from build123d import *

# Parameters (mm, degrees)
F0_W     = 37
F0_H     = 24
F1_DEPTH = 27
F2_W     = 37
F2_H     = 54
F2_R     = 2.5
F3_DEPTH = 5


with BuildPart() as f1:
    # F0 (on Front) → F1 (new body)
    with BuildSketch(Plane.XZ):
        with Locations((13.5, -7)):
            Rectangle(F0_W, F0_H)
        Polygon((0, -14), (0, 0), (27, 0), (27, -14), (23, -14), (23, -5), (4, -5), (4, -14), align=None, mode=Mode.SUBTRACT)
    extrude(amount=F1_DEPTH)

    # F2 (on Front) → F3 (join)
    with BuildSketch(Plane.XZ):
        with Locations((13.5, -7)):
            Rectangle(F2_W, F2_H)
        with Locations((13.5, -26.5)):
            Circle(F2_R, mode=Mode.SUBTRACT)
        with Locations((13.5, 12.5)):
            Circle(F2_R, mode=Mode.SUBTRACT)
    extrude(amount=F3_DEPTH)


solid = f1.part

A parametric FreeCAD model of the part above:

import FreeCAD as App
import Part
import Sketcher

V = App.Vector


def add_polygon(sketch, points):
    """Adds a closed chain of lines whose ends are joined by coincident constraints."""
    first, n = sketch.GeometryCount, len(points)
    for a, b in zip(points, points[1:] + points[:1]):
        sketch.addGeometry(Part.LineSegment(App.Vector(*a, 0), App.Vector(*b, 0)), False)
    for i in range(n):
        sketch.addConstraint(Sketcher.Constraint("Coincident", first + i, 2, first + (i + 1) % n, 1))

doc = App.newDocument("Part")
params = doc.addObject("Spreadsheet::Sheet", "Params")
for row, (alias, value) in enumerate([
    ("sketch1_width", "37 mm"),
    ("sketch1_width2", "4 mm"),
    ("sketch1_width3", "27 mm"),
    ("sketch1_height", "24 mm"),
    ("sketch1_height2", "14 mm"),
    ("pad1_length", "27 mm"),
    ("sketch2_diameter", "5 mm"),
    ("sketch2_width", "37 mm"),
    ("sketch2_height", "54 mm"),
    ("pad2_length", "5 mm"),
], start=1):
    params.set(f"A{row}", alias)
    params.set(f"B{row}", "=" + value)
    params.setAlias(f"B{row}", alias)

body = doc.addObject("PartDesign::Body", "Body")

# Sketch on XZ plane
sketch1 = body.newObject("Sketcher::SketchObject", "Sketch")
sketch1.AttachmentSupport = (doc.getObject("XZ_Plane"), [""])
sketch1.MapMode = "FlatFace"
add_polygon(sketch1, [(-5, 5), (-5, -19), (32, -19), (32, 5)])  # lines 0-3
add_polygon(sketch1, [(4, -14), (0, -14), (0, 0), (27, 0), (27, -14), (23, -14), (23, -5), (4, -5)])  # lines 4-11
sketch1.addConstraint(Sketcher.Constraint("Vertical", 0))
sketch1.addConstraint(Sketcher.Constraint("Horizontal", 1))
sketch1.addConstraint(Sketcher.Constraint("Vertical", 2))
sketch1.addConstraint(Sketcher.Constraint("Horizontal", 3))
sketch1.addConstraint(Sketcher.Constraint("Horizontal", 4))
sketch1.addConstraint(Sketcher.Constraint("Vertical", 5))
sketch1.addConstraint(Sketcher.Constraint("Horizontal", 6))
sketch1.addConstraint(Sketcher.Constraint("Vertical", 7))
sketch1.addConstraint(Sketcher.Constraint("Horizontal", 8))
sketch1.addConstraint(Sketcher.Constraint("Vertical", 9))
sketch1.addConstraint(Sketcher.Constraint("Horizontal", 10))
sketch1.addConstraint(Sketcher.Constraint("Vertical", 11))
sketch1.addConstraint(Sketcher.Constraint("Coincident", 5, 2, -1, 1))
sketch1.addConstraint(Sketcher.Constraint("Horizontal", 4, 2, 7, 2))
sketch1.addConstraint(Sketcher.Constraint("Equal", 4, 8))
sketch1.addConstraint(Sketcher.Constraint("DistanceX", 1, 1, 1, 2, 37.0))
sketch1.addConstraint(Sketcher.Constraint("DistanceX", 4, 2, 4, 1, 4.0))
sketch1.addConstraint(Sketcher.Constraint("DistanceX", 6, 1, 6, 2, 27.0))
sketch1.addConstraint(Sketcher.Constraint("DistanceY", 0, 2, 0, 1, 24.0))
sketch1.addConstraint(Sketcher.Constraint("DistanceY", 5, 1, 5, 2, 14.0))
sketch1.addConstraint(Sketcher.Constraint("DistanceY", 9, 1, 9, 2, 9.0))
sketch1.addConstraint(Sketcher.Constraint("DistanceX", 0, 2, -1, 1, 5.0))
sketch1.addConstraint(Sketcher.Constraint("DistanceY", 0, 2, -1, 1, 19.0))
sketch1.setExpression("Constraints[27]", "Params.sketch1_width")
sketch1.setExpression("Constraints[28]", "Params.sketch1_width2")
sketch1.setExpression("Constraints[29]", "Params.sketch1_width3")
sketch1.setExpression("Constraints[30]", "Params.sketch1_height")
sketch1.setExpression("Constraints[31]", "Params.sketch1_height2")
pad1 = body.newObject("PartDesign::Pad", "Pad")
pad1.Profile = sketch1
pad1.setExpression("Length", "Params.pad1_length")

# Sketch on XZ plane
sketch2 = body.newObject("Sketcher::SketchObject", "Sketch001")
sketch2.AttachmentSupport = (doc.getObject("XZ_Plane"), [""])
sketch2.MapMode = "FlatFace"
add_polygon(sketch2, [(-5, 20), (-5, -34), (32, -34), (32, 20)])  # lines 0-3
sketch2.addGeometry(Part.Circle(V(13.5, -26.5, 0), V(0, 0, 1), 2.5), False)  # 4
sketch2.addGeometry(Part.Circle(V(13.5, 12.5, 0), V(0, 0, 1), 2.5), False)  # 5
sketch2.addConstraint(Sketcher.Constraint("Vertical", 0))
sketch2.addConstraint(Sketcher.Constraint("Horizontal", 1))
sketch2.addConstraint(Sketcher.Constraint("Vertical", 2))
sketch2.addConstraint(Sketcher.Constraint("Horizontal", 3))
sketch2.addConstraint(Sketcher.Constraint("Equal", 4, 5))
sketch2.addConstraint(Sketcher.Constraint("Vertical", 4, 3, 5, 3))
sketch2.addConstraint(Sketcher.Constraint("Diameter", 4, 5.0))
sketch2.addConstraint(Sketcher.Constraint("DistanceX", 1, 1, 1, 2, 37.0))
sketch2.addConstraint(Sketcher.Constraint("DistanceY", 0, 2, 0, 1, 54.0))
sketch2.addConstraint(Sketcher.Constraint("DistanceX", 0, 2, -1, 1, 5.0))
sketch2.addConstraint(Sketcher.Constraint("DistanceY", 0, 2, -1, 1, 34.0))
sketch2.addConstraint(Sketcher.Constraint("DistanceY", 4, 3, 5, 3, 39.0))
sketch2.addConstraint(Sketcher.Constraint("DistanceX", -1, 1, 4, 3, 13.5))
sketch2.addConstraint(Sketcher.Constraint("DistanceY", 4, 3, -1, 1, 26.5))
sketch2.setExpression("Constraints[10]", "Params.sketch2_diameter")
sketch2.setExpression("Constraints[11]", "Params.sketch2_width")
sketch2.setExpression("Constraints[12]", "Params.sketch2_height")
pad2 = body.newObject("PartDesign::Pad", "Pad001")
pad2.Profile = sketch2
pad2.setExpression("Length", "Params.pad2_length")

doc.recompute()
